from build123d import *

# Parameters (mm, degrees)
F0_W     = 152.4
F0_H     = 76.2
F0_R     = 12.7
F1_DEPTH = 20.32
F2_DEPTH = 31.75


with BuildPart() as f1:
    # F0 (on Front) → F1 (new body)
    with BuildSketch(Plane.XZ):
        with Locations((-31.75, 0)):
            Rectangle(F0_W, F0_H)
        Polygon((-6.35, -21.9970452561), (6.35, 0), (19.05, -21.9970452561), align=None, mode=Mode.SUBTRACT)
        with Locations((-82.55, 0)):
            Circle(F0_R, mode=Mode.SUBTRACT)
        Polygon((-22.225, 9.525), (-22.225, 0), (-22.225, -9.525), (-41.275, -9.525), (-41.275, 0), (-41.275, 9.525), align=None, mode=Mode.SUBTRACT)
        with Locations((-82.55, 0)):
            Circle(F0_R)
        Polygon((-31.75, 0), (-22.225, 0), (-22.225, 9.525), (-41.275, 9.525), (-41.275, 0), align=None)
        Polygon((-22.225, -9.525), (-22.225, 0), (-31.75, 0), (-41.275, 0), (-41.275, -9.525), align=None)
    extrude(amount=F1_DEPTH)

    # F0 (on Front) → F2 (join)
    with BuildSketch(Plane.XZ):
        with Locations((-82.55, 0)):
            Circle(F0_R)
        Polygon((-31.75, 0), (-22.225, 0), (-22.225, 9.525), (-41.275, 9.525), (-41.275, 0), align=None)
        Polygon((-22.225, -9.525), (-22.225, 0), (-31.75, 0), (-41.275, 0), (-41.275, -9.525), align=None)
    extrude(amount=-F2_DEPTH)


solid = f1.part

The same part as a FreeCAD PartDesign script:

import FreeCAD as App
import Part
import Sketcher
Q = App.Units.Quantity

doc = App.newDocument("Part")
params = doc.addObject("Spreadsheet::Sheet", "Params")
for row, (alias, value) in enumerate([
    ("sketch1_width", "6 in"),
    ("sketch1_width2", "1 in"),
    ("sketch1_height", "3 in"),
    ("sketch1_length", "1 in"),
    ("pad1_length", "0.8 in"),
    ("sketch2_diameter", "1 in"),
    ("sketch2_width", "0.75 in"),
    ("pad2_length", "1.25 in"),
], start=1):
    params.set(f"A{row}", alias)
    params.set(f"B{row}", "=" + value)
    params.setAlias(f"B{row}", alias)

body = doc.addObject("PartDesign::Body", "Body")

# Sketch on XZ plane
sketch1 = body.newObject("Sketcher::SketchObject", "Sketch")
sketch1.AttachmentSupport = (doc.getObject("XZ_Plane"), [""])
sketch1.MapMode = "FlatFace"
sketch1.addGeometry([
    Part.LineSegment(App.Vector(-108, 38, 0), App.Vector(-108, -38, 0)),  # 0
    Part.LineSegment(App.Vector(-108, -38, 0), App.Vector(44, -38, 0)),  # 1
    Part.LineSegment(App.Vector(44, -38, 0), App.Vector(44, 38, 0)),  # 2
    Part.LineSegment(App.Vector(44, 38, 0), App.Vector(-108, 38, 0)),  # 3
    Part.LineSegment(App.Vector(19, -22, 0), App.Vector(-6, -22, 0)),  # 4
    Part.LineSegment(App.Vector(-6, -22, 0), App.Vector(6, 0, 0)),  # 5
    Part.LineSegment(App.Vector(6, 0, 0), App.Vector(19, -22, 0)),  # 6
], False)
sketch1.addConstraint([
    Sketcher.Constraint("Coincident", 0, 2, 1, 1),
    Sketcher.Constraint("Coincident", 1, 2, 2, 1),
    Sketcher.Constraint("Coincident", 2, 2, 3, 1),
    Sketcher.Constraint("Coincident", 3, 2, 0, 1),
    Sketcher.Constraint("Coincident", 4, 2, 5, 1),
    Sketcher.Constraint("Coincident", 5, 2, 6, 1),
    Sketcher.Constraint("Coincident", 6, 2, 4, 1),
    Sketcher.Constraint("Vertical", 0),
    Sketcher.Constraint("Horizontal", 1),
    Sketcher.Constraint("Vertical", 2),
    Sketcher.Constraint("Horizontal", 3),
    Sketcher.Constraint("Horizontal", 4),
    Sketcher.Constraint("PointOnObject", 5, 2, -1),
    Sketcher.Constraint("Equal", 5, 6),
    Sketcher.Constraint("DistanceX", 1, 1, 1, 2, Q("6 in")),
    Sketcher.Constraint("DistanceX", 4, 2, 4, 1, Q("1 in")),
    Sketcher.Constraint("DistanceY", 0, 2, 0, 1, Q("3 in")),
    Sketcher.Constraint("Distance", 5, Q("1 in")),
    Sketcher.Constraint("DistanceX", 4, 2, 1, 2, Q("2 in")),
    Sketcher.Constraint("DistanceY", 0, 2, -1, 1, Q("1.5 in")),
    Sketcher.Constraint("DistanceX", 0, 2, -1, 1, Q("4.25 in")),
])
sketch1.setExpression("Constraints[14]", "Params.sketch1_width")
sketch1.setExpression("Constraints[15]", "Params.sketch1_width2")
sketch1.setExpression("Constraints[16]", "Params.sketch1_height")
sketch1.setExpression("Constraints[17]", "Params.sketch1_length")
pad1 = body.newObject("PartDesign::Pad", "Pad")
pad1.Profile = sketch1
pad1.setExpression("Length", "Params.pad1_length")

# Sketch on XZ plane
sketch2 = body.newObject("Sketcher::SketchObject", "Sketch001")
sketch2.AttachmentSupport = (doc.getObject("XZ_Plane"), [""])
sketch2.MapMode = "FlatFace"
sketch2.addGeometry([
    Part.Circle(App.Vector(-83, 0, 0), App.Vector(0, 0, 1), 13),  # 0
    Part.LineSegment(App.Vector(-22, 10, 0), App.Vector(-41, 10, 0)),  # 1
    Part.LineSegment(App.Vector(-41, 10, 0), App.Vector(-41, -10, 0)),  # 2
    Part.LineSegment(App.Vector(-41, -10, 0), App.Vector(-22, -10, 0)),  # 3
    Part.LineSegment(App.Vector(-22, -10, 0), App.Vector(-22, 10, 0)),  # 4
], False)
sketch2.addConstraint([
    Sketcher.Constraint("Coincident", 1, 2, 2, 1),
    Sketcher.Constraint("Coincident", 2, 2, 3, 1),
    Sketcher.Constraint("Coincident", 3, 2, 4, 1),
    Sketcher.Constraint("Coincident", 4, 2, 1, 1),
    Sketcher.Constraint("Horizontal", 1),
    Sketcher.Constraint("Vertical", 2),
    Sketcher.Constraint("Horizontal", 3),
    Sketcher.Constraint("Vertical", 4),
    Sketcher.Constraint("PointOnObject", 0, 3, -1),
    Sketcher.Constraint("Equal", 3, 2),
    Sketcher.Constraint("Diameter", 0, Q("1 in")),
    Sketcher.Constraint("DistanceX", 1, 2, 1, 1, Q("0.75 in")),
    Sketcher.Constraint("DistanceX", 0, 3, -1, 1, Q("3.25 in")),
    Sketcher.Constraint("DistanceX", 1, 2, -1, 1, Q("1.625 in")),
    Sketcher.Constraint("DistanceY", -1, 1, 1, 2, Q("0.375 in")),
])
sketch2.setExpression("Constraints[10]", "Params.sketch2_diameter")
sketch2.setExpression("Constraints[11]", "Params.sketch2_width")
pad2 = body.newObject("PartDesign::Pad", "Pad001")
pad2.Profile = sketch2
pad2.setExpression("Length", "Params.pad2_length")
pad2.Reversed = True

doc.recompute()
